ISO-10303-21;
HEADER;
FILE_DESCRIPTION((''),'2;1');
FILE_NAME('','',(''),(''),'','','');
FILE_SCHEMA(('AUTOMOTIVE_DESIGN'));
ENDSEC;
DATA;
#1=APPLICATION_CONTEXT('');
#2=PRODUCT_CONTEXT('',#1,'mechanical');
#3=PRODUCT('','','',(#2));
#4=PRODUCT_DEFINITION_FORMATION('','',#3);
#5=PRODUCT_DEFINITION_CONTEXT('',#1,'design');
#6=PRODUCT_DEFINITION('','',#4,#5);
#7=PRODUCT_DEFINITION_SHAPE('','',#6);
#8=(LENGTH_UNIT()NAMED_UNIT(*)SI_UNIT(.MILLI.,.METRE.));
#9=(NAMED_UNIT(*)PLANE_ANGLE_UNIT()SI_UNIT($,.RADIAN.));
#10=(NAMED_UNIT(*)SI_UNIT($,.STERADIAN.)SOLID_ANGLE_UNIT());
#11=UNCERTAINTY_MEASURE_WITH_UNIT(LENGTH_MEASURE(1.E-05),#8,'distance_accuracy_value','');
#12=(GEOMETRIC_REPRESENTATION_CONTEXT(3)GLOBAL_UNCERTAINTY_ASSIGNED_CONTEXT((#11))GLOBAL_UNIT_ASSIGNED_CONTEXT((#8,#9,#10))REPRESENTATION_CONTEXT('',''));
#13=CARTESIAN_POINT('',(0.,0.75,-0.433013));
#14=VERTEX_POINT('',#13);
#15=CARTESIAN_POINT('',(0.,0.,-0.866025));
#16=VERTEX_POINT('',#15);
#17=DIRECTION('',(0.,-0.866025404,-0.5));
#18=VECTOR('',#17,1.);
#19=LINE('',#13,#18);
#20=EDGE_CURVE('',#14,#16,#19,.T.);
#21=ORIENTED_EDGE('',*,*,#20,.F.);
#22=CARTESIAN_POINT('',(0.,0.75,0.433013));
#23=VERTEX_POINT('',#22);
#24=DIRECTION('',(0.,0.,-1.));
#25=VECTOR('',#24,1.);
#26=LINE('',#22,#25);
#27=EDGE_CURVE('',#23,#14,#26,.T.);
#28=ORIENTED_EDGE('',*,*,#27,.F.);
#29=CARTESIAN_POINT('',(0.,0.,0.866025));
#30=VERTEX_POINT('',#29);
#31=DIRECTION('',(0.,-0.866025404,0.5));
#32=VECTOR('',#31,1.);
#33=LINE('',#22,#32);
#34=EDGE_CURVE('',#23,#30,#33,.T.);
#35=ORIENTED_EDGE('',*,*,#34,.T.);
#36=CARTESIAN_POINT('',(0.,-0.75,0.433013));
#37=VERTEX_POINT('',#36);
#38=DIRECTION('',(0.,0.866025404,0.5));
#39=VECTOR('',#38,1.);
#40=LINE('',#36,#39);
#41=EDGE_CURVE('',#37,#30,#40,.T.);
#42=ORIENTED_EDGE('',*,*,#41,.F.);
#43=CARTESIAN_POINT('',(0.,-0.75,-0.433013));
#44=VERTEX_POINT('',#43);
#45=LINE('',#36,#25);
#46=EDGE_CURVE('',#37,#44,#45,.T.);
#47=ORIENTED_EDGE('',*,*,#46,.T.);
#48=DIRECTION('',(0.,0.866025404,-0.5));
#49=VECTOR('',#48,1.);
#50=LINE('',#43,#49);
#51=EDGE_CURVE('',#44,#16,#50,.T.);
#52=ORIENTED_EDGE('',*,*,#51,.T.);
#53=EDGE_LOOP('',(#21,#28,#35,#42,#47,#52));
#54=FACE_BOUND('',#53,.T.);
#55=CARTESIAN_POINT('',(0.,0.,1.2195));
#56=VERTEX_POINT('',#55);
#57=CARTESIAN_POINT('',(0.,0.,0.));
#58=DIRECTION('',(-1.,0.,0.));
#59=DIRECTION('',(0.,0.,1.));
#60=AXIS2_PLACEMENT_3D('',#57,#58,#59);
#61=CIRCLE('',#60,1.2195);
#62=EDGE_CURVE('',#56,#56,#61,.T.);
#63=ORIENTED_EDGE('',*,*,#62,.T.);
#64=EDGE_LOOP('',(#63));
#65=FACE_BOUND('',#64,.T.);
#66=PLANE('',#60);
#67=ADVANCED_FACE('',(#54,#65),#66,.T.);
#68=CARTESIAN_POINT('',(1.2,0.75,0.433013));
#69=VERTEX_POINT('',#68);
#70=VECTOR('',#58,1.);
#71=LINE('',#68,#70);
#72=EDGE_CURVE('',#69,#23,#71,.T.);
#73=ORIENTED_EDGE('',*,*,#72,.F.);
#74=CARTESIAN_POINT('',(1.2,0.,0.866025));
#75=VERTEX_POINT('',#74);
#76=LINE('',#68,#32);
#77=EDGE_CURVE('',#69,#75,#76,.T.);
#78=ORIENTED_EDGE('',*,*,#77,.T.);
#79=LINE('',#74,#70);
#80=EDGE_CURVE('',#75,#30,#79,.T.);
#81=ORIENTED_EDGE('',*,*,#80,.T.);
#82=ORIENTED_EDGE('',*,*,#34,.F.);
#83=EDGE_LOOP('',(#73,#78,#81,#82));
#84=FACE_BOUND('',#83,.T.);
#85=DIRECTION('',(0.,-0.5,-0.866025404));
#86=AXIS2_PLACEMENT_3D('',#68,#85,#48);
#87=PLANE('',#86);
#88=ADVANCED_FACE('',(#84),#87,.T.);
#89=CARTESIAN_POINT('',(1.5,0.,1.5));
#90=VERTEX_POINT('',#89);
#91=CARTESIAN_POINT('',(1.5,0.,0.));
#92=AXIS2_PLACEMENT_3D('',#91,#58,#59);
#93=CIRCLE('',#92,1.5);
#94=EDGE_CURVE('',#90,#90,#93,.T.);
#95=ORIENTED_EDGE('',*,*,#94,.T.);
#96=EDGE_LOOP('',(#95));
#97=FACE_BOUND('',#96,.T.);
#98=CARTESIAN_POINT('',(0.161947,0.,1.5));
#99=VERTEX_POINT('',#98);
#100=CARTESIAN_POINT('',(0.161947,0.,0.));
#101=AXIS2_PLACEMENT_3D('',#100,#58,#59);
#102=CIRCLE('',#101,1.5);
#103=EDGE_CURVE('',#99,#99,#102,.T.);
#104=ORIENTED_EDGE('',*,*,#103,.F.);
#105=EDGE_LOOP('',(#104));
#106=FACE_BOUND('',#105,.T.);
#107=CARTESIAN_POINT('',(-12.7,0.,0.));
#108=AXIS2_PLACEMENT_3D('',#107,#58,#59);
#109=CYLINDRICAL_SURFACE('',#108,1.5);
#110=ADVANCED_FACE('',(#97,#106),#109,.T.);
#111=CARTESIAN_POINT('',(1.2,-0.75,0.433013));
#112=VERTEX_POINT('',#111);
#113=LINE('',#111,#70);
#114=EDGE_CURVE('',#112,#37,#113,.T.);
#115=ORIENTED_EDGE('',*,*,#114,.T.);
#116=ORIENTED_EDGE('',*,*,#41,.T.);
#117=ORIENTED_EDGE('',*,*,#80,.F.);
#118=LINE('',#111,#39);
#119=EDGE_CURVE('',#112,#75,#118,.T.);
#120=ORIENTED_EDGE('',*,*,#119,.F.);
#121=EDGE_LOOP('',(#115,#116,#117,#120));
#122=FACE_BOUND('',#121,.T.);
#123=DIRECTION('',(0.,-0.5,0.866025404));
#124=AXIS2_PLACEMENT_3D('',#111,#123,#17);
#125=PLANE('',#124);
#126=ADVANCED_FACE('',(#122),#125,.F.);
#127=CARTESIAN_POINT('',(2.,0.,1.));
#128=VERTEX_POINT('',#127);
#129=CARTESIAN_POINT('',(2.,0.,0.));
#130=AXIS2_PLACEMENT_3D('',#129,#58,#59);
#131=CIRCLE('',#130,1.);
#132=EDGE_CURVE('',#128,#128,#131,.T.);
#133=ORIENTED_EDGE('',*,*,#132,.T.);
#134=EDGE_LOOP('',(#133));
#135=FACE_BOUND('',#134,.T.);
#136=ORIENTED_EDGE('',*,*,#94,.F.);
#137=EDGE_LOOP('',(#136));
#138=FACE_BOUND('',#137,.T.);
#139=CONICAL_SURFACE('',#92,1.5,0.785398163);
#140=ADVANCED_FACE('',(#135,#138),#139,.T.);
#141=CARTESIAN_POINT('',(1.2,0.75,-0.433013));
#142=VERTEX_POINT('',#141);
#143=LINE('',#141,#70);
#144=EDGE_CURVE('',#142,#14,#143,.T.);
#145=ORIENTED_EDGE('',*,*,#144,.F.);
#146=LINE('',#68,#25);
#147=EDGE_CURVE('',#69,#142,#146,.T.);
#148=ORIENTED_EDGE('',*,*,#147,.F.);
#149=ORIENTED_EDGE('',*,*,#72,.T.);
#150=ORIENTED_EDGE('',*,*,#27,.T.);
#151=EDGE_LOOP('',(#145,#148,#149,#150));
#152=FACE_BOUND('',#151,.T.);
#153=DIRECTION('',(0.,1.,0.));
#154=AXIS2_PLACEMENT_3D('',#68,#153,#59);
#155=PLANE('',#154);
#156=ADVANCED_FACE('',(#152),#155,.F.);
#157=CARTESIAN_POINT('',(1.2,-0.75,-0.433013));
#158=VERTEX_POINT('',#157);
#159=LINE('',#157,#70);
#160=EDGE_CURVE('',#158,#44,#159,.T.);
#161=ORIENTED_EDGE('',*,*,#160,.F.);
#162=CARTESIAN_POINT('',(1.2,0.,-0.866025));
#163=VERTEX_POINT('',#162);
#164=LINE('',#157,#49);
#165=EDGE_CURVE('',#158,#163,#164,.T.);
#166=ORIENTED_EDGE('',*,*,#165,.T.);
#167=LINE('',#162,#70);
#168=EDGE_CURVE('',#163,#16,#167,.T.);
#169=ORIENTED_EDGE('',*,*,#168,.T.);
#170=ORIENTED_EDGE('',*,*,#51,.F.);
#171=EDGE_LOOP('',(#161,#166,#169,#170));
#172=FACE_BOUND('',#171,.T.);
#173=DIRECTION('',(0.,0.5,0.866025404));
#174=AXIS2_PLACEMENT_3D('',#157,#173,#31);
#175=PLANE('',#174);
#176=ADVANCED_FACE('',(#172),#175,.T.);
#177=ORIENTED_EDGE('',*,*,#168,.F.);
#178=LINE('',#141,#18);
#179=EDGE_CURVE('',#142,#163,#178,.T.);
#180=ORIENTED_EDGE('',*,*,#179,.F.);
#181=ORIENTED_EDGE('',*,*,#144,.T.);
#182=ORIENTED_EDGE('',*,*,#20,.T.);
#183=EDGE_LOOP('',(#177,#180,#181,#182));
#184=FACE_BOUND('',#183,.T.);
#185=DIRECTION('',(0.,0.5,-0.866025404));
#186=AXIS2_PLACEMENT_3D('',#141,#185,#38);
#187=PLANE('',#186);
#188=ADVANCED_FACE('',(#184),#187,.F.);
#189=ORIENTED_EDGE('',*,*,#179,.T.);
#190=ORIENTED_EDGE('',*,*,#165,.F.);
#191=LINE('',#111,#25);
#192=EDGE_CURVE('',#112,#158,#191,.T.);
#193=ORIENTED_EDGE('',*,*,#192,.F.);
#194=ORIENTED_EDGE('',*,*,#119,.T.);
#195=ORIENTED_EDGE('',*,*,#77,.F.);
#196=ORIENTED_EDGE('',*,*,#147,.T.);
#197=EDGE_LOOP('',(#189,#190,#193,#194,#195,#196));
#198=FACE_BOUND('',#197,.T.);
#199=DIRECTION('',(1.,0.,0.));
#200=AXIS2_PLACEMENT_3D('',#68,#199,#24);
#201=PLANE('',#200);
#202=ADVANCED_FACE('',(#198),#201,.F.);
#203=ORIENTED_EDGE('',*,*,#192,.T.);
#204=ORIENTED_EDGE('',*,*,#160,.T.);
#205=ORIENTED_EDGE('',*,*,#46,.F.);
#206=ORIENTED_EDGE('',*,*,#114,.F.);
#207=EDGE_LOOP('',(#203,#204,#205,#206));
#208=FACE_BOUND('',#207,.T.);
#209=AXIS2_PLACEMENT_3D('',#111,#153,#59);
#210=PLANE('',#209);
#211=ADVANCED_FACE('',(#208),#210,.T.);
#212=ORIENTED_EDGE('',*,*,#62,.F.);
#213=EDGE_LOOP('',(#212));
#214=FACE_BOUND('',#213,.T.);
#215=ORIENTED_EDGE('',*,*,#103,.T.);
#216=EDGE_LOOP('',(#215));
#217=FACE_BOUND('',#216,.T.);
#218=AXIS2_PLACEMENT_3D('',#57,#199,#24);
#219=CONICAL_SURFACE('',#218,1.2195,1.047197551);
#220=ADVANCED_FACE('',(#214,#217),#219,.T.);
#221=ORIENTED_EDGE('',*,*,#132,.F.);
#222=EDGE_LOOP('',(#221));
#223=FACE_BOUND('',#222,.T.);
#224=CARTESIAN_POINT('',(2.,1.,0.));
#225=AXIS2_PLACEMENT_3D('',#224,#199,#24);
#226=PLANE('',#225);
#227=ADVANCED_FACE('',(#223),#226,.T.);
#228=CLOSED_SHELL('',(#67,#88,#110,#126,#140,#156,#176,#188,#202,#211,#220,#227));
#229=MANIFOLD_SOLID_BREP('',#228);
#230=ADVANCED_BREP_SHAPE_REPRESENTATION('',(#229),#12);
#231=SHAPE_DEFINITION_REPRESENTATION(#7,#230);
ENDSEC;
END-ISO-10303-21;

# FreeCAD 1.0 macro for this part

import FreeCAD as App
import Part
import Sketcher

V = App.Vector
Q = App.Units.Quantity

doc = App.newDocument("Part")
body = doc.addObject("PartDesign::Body", "Body")

# Sketch on XY plane
sketch1 = body.newObject("Sketcher::SketchObject", "Sketch")
sketch1.AttachmentSupport = (doc.getObject("XY_Plane"), [""])
sketch1.MapMode = "FlatFace"
sketch1.addGeometry([
    Part.LineSegment(V(0, 1.22, 0), V(0, 0, 0)),  # 0
    Part.LineSegment(V(0, 0, 0), V(2, 0, 0)),  # 1
    Part.LineSegment(V(2, 0, 0), V(2, 1, 0)),  # 2
    Part.LineSegment(V(2, 1, 0), V(1.5, 1.5, 0)),  # 3
    Part.LineSegment(V(1.5, 1.5, 0), V(0.16, 1.5, 0)),  # 4
    Part.LineSegment(V(0.16, 1.5, 0), V(0, 1.22, 0)),  # 5
], False)
sketch1.addConstraint([
    Sketcher.Constraint("Coincident", 0, 2, 1, 1),
    Sketcher.Constraint("Coincident", 1, 2, 2, 1),
    Sketcher.Constraint("Coincident", 2, 2, 3, 1),
    Sketcher.Constraint("Coincident", 3, 2, 4, 1),
    Sketcher.Constraint("Coincident", 4, 2, 5, 1),
    Sketcher.Constraint("Coincident", 5, 2, 0, 1),
    Sketcher.Constraint("Vertical", 0),
    Sketcher.Constraint("Horizontal", 1),
    Sketcher.Constraint("Vertical", 2),
    Sketcher.Constraint("Horizontal", 4),
    Sketcher.Constraint("Coincident", 0, 2, -1, 1),
    Sketcher.Constraint("DistanceX", 1, 1, 1, 2, 2.0),
    Sketcher.Constraint("DistanceY", 2, 1, 2, 2, 1.0),
    Sketcher.Constraint("Angle", 3, Q("135 deg")),
    Sketcher.Constraint("Angle", 5, Q("-120 deg")),
    Sketcher.Constraint("DistanceX", -1, 1, 3, 2, 1.5),
    Sketcher.Constraint("DistanceY", 0, 2, 0, 1, 1.2195),
])
revolution = body.newObject("PartDesign::Revolution", "Revolution")
revolution.Profile = sketch1
revolution.ReferenceAxis = (sketch1, ["H_Axis"])
revolution.Angle = 360

# Sketch on YZ plane
sketch2 = body.newObject("Sketcher::SketchObject", "Sketch001")
sketch2.AttachmentSupport = (doc.getObject("YZ_Plane"), [""])
sketch2.MapMode = "FlatFace"
sketch2.addGeometry([
    Part.LineSegment(V(0.8, 0.4, 0), V(0.8, -0.4, 0)),  # 0
    Part.LineSegment(V(0.8, -0.4, 0), V(0, -0.9, 0)),  # 1
    Part.LineSegment(V(0, -0.9, 0), V(-0.8, -0.4, 0)),  # 2
    Part.LineSegment(V(-0.8, -0.4, 0), V(-0.8, 0.4, 0)),  # 3
    Part.LineSegment(V(-0.8, 0.4, 0), V(0, 0.9, 0)),  # 4
    Part.LineSegment(V(0, 0.9, 0), V(0.8, 0.4, 0)),  # 5
], False)
sketch2.addConstraint([
    Sketcher.Constraint("Coincident", 0, 2, 1, 1),
    Sketcher.Constraint("Coincident", 1, 2, 2, 1),
    Sketcher.Constraint("Coincident", 2, 2, 3, 1),
    Sketcher.Constraint("Coincident", 3, 2, 4, 1),
    Sketcher.Constraint("Coincident", 4, 2, 5, 1),
    Sketcher.Constraint("Coincident", 5, 2, 0, 1),
    Sketcher.Constraint("Vertical", 0),
    Sketcher.Constraint("Vertical", 3),
    Sketcher.Constraint("Symmetric", 0, 2, 3, 2, -1, 1),
    Sketcher.Constraint("Symmetric", 1, 2, 4, 2, -1, 1),
    Sketcher.Constraint("PointOnObject", 1, 2, -2),
    Sketcher.Constraint("Parallel", 2, 5),
    Sketcher.Constraint("Horizontal", 0, 2, 2, 2),
    Sketcher.Constraint("Angle", 1, Q("-150 deg")),
    Sketcher.Constraint("DistanceX", 2, 2, 0, 2, 1.5),
    Sketcher.Constraint("DistanceY", 0, 2, 0, 1, 0.866025),
])
pocket1 = body.newObject("PartDesign::Pocket", "Pocket")
pocket1.Profile = sketch2
pocket1.Length = 1.2
pocket1.Reversed = True

doc.recompute()
